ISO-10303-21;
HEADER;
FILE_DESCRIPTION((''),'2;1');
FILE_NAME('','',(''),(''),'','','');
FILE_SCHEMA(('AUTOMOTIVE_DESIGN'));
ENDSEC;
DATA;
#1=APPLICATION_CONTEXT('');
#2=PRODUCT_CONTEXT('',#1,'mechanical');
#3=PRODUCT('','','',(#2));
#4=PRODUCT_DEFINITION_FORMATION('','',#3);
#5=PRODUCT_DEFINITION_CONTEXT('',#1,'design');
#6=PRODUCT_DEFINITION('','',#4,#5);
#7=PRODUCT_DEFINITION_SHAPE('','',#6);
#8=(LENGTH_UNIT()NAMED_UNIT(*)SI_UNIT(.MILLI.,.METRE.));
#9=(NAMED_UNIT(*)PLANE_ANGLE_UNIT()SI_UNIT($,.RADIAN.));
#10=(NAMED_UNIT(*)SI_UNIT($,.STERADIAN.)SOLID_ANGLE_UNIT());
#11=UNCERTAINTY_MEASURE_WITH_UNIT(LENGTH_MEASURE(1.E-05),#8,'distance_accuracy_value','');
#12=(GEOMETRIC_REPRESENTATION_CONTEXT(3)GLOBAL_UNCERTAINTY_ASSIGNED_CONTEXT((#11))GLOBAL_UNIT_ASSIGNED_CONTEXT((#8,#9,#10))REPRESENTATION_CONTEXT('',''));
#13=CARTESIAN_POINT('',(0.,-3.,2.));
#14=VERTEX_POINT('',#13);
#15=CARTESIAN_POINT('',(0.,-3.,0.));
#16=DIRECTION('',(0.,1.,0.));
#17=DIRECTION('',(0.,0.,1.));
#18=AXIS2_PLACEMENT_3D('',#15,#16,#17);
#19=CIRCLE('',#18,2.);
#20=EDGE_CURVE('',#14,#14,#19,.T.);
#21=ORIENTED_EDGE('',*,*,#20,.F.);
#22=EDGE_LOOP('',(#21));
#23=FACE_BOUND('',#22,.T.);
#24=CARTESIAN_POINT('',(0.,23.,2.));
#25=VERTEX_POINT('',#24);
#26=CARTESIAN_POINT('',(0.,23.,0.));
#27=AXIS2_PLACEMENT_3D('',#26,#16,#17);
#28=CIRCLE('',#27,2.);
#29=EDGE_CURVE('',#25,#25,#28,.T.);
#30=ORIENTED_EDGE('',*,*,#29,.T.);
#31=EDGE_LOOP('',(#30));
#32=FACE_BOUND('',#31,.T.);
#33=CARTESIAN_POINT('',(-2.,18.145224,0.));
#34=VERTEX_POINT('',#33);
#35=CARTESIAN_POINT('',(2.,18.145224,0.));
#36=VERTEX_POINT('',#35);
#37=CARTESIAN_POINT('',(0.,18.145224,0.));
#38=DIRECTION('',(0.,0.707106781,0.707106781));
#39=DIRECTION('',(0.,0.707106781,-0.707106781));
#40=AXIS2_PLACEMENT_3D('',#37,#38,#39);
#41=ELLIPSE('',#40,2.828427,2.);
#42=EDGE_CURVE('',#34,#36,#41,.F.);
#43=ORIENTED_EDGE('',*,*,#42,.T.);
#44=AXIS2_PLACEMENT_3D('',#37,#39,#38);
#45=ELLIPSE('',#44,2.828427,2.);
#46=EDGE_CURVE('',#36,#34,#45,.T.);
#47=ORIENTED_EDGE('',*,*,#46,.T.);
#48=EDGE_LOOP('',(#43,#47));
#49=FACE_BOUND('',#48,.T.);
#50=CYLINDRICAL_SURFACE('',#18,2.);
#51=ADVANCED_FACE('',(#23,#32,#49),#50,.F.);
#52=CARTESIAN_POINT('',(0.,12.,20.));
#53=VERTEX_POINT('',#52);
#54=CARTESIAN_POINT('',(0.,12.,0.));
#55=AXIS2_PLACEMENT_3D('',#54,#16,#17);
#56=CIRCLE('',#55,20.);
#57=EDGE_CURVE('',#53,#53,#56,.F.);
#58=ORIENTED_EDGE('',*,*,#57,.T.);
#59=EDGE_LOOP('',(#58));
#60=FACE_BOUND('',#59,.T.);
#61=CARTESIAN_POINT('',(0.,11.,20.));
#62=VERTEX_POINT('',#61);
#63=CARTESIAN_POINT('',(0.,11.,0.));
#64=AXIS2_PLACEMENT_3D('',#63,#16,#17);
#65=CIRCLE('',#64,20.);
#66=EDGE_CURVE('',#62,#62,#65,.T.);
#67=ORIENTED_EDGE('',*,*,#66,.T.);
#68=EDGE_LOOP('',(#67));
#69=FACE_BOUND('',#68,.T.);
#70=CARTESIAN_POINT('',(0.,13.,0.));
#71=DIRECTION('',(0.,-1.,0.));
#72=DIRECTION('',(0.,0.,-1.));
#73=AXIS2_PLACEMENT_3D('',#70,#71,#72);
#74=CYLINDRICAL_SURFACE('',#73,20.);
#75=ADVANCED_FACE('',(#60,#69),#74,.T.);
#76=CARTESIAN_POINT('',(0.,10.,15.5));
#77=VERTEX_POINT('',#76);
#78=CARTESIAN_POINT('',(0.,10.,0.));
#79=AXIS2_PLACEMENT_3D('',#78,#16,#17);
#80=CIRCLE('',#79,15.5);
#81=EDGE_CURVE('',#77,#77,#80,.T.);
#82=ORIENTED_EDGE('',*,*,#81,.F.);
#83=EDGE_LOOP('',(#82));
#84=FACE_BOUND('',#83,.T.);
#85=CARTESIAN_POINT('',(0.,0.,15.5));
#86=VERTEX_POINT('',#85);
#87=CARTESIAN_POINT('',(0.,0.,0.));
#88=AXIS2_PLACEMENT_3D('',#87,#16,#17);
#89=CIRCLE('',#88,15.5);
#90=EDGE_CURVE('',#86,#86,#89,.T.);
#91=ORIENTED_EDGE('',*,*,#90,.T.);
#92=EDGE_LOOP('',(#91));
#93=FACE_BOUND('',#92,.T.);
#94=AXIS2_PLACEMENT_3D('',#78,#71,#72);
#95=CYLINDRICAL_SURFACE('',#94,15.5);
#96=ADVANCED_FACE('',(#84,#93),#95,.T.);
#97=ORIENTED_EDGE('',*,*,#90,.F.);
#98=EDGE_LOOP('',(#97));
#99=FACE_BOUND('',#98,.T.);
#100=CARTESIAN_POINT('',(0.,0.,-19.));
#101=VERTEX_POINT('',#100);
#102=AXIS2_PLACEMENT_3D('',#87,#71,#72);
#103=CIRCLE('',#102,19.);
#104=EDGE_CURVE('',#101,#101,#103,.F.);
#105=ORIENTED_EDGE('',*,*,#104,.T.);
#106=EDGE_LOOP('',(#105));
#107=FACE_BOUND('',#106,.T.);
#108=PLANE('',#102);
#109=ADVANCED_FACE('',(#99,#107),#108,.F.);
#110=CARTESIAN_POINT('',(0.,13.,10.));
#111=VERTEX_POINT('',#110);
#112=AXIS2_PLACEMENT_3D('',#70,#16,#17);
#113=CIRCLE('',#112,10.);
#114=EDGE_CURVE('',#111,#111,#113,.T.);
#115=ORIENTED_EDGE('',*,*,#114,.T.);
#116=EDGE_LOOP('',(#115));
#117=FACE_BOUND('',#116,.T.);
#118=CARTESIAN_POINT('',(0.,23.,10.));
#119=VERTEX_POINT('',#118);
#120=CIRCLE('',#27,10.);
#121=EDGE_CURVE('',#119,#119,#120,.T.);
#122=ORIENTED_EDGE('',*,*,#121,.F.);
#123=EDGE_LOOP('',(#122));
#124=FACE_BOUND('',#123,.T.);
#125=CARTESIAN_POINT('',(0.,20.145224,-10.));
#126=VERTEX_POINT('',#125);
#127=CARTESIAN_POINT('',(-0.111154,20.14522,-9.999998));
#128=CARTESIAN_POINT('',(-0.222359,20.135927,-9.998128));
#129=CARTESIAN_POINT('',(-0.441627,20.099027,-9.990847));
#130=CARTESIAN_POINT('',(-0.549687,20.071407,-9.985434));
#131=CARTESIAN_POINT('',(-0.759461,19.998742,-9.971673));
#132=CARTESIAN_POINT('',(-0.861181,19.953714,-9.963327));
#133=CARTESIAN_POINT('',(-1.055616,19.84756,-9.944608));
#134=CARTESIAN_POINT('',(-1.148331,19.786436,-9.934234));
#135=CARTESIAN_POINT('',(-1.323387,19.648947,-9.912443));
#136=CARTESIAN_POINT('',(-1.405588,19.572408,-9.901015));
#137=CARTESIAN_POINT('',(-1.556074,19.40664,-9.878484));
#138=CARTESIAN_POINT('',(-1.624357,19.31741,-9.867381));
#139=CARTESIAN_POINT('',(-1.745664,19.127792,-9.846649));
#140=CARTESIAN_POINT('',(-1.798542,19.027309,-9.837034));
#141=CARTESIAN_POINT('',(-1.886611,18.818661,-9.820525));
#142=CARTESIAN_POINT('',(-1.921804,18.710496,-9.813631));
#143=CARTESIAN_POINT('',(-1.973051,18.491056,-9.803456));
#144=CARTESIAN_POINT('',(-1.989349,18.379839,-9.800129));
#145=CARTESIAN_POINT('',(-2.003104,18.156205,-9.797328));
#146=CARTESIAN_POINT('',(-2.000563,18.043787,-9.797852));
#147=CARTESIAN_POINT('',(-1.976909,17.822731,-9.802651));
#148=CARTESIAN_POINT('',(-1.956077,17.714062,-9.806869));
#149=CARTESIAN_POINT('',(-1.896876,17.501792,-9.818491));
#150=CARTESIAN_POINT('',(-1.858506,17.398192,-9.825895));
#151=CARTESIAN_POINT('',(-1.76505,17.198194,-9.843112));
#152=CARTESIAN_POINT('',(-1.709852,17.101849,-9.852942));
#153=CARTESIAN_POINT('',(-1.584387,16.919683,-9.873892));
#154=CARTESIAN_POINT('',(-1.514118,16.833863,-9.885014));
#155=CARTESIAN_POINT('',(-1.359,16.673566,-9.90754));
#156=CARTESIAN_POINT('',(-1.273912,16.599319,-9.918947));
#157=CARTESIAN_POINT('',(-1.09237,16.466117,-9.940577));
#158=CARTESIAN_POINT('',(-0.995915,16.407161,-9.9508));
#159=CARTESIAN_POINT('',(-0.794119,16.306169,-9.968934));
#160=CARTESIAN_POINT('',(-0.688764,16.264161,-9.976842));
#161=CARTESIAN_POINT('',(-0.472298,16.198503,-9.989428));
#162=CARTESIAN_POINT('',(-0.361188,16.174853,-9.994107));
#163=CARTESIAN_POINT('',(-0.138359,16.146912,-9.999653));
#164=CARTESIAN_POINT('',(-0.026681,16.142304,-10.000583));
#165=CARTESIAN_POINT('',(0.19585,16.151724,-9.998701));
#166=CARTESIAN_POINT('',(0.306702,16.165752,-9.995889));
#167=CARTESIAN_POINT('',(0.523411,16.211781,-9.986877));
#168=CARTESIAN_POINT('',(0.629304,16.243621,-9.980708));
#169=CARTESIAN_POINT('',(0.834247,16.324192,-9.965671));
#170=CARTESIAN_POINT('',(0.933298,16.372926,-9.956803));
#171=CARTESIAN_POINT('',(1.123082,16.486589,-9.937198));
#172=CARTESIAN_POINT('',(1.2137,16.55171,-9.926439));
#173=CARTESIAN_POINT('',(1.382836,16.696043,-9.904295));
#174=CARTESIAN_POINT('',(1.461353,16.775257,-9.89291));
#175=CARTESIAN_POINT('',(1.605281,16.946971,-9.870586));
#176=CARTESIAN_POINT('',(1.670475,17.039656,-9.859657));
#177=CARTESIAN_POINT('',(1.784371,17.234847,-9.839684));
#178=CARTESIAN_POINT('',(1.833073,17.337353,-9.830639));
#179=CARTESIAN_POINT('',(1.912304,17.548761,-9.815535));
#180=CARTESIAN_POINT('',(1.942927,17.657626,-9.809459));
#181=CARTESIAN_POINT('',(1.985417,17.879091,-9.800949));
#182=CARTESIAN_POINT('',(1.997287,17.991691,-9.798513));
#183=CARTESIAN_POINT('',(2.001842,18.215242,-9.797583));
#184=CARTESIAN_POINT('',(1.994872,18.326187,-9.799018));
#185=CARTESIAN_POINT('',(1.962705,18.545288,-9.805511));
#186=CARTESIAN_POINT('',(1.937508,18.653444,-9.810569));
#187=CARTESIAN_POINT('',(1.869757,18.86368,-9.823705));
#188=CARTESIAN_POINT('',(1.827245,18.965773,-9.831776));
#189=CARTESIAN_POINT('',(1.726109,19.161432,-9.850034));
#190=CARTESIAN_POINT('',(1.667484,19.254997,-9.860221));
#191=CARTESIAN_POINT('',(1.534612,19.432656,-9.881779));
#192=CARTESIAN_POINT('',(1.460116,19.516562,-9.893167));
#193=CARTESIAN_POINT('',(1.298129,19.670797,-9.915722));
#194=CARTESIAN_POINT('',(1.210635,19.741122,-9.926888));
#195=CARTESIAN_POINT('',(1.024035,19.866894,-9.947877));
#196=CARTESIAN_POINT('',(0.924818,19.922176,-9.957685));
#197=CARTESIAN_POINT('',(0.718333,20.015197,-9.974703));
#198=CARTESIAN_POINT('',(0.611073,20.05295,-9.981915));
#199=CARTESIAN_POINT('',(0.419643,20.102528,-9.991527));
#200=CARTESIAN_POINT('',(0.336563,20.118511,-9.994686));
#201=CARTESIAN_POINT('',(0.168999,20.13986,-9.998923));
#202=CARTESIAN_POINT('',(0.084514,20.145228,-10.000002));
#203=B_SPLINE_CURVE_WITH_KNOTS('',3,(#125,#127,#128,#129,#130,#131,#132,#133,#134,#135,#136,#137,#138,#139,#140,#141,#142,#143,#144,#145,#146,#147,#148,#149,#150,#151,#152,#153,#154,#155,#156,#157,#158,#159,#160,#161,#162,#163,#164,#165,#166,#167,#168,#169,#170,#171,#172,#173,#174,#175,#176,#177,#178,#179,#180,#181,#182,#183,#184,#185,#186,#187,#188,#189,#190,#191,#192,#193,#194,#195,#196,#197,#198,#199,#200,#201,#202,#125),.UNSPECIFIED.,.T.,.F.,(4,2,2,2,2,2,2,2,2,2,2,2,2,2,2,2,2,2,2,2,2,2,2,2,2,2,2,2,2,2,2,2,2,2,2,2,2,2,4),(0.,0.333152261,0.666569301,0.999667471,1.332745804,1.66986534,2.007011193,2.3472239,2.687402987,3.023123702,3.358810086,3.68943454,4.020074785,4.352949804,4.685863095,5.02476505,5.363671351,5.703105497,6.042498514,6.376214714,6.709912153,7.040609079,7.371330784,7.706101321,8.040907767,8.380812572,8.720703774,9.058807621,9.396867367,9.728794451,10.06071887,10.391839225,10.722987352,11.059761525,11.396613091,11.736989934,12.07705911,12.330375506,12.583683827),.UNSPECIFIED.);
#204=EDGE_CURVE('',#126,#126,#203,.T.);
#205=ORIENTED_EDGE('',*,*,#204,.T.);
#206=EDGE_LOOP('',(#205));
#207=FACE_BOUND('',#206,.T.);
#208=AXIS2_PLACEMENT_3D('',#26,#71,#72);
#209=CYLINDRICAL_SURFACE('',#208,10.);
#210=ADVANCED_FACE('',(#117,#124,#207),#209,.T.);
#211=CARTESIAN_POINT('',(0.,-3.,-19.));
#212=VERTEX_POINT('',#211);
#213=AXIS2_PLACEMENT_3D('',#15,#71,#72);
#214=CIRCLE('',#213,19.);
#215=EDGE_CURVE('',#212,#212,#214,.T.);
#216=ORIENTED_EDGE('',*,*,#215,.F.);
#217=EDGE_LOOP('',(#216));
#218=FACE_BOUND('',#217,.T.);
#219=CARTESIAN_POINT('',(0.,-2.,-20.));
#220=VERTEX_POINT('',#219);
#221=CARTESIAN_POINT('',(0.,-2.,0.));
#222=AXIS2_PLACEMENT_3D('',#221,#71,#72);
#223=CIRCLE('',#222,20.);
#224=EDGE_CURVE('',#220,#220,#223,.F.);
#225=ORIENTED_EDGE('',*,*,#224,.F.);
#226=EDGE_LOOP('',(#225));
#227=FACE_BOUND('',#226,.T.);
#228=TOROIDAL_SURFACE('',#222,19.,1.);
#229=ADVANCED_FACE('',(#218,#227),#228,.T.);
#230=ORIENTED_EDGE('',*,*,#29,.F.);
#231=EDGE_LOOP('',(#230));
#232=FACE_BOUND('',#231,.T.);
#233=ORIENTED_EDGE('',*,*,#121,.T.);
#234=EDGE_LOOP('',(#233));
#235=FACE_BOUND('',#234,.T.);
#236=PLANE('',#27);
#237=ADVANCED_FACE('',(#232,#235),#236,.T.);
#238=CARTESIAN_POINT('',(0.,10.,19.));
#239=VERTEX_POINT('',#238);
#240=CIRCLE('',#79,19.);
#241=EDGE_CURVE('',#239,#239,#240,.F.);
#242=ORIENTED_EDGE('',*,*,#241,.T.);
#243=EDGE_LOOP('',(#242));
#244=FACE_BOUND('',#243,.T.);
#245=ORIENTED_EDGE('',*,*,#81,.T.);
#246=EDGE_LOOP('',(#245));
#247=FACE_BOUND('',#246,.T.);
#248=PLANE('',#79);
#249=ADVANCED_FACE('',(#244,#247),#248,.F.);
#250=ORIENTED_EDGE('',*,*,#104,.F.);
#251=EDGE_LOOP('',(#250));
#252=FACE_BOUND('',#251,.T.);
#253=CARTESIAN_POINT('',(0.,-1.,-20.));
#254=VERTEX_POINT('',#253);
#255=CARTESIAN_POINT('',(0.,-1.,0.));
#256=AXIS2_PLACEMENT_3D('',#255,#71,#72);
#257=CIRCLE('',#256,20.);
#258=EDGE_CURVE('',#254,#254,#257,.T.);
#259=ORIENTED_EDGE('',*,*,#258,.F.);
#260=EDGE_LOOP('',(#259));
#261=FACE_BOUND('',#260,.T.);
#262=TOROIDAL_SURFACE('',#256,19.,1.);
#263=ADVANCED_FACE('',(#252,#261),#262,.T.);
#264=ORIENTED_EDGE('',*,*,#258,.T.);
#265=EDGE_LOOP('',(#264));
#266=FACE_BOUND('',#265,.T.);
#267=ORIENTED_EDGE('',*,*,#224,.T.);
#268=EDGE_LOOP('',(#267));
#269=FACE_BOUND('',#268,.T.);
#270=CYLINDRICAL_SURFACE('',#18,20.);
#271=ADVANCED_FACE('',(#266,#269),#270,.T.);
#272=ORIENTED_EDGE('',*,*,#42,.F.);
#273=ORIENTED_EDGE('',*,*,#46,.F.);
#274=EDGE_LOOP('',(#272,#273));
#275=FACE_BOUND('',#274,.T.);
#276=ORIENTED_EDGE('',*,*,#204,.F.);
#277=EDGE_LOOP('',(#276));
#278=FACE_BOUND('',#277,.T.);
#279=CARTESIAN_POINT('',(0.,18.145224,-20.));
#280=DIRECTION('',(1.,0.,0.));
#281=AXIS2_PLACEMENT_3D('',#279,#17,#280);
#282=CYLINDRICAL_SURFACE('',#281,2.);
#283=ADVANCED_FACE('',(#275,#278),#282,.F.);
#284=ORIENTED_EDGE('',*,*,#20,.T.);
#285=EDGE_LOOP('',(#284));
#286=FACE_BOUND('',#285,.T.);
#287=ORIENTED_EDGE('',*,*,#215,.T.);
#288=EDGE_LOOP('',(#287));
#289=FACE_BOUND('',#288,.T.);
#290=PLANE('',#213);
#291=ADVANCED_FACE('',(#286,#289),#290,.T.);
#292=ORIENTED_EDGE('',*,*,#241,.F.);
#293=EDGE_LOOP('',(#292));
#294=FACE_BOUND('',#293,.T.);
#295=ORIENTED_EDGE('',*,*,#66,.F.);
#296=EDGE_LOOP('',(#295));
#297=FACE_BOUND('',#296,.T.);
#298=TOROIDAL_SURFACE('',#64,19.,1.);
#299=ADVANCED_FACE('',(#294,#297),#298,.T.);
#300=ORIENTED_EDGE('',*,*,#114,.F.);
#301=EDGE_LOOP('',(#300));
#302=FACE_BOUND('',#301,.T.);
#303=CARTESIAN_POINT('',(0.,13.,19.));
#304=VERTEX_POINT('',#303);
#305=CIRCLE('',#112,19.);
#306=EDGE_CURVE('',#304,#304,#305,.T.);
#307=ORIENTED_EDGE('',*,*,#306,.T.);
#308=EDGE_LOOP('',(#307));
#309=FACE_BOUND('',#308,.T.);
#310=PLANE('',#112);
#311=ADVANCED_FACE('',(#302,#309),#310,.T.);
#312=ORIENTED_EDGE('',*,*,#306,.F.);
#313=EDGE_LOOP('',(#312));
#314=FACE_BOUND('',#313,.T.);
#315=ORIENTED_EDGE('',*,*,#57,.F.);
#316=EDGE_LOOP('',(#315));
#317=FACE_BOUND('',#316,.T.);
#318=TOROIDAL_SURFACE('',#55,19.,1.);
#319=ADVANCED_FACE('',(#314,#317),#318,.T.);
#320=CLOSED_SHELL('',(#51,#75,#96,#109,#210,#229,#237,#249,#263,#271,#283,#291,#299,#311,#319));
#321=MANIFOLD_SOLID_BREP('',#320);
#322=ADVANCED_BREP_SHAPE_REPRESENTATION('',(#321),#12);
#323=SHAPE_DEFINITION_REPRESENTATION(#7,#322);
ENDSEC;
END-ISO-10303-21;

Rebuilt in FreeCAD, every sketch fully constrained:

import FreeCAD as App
import Part
import Sketcher

V = App.Vector


def edges_at(feature, points):
    """Names of the edges that pass closest to the given points."""
    edges = feature.Shape.Edges
    near = lambda p: min(range(len(edges)), key=lambda i: edges[i].distToShape(Part.Vertex(*p))[0])
    return sorted({f"Edge{near(p) + 1}" for p in points})

doc = App.newDocument("Part")
body = doc.addObject("PartDesign::Body", "Body")

sketch1 = body.newObject("Sketcher::SketchObject", "Sketch")
sketch1.AttachmentSupport = (doc.getObject("XZ_Plane"), [""])
sketch1.MapMode = "FlatFace"
sketch1.addGeometry(Part.Circle(V(0, 0, 0), V(0, 0, 1), 15.5), False)
sketch1.addConstraint(Sketcher.Constraint("Coincident", 0, 3, -1, 1))
sketch1.addConstraint(Sketcher.Constraint("Diameter", 0, 31.0))
pad1 = body.newObject("PartDesign::Pad", "Pad")
pad1.Profile = sketch1
pad1.Length = 10
pad1.Reversed = True

sketch2 = body.newObject("Sketcher::SketchObject", "Sketch001")
sketch2.AttachmentSupport = (doc.getObject("XZ_Plane"), [""])
sketch2.MapMode = "FlatFace"
sketch2.AttachmentOffset = App.Placement(V(0, 0, -10), App.Rotation())
sketch2.addGeometry(Part.Circle(V(0, 0, 0), V(0, 0, 1), 20), False)
sketch2.addConstraint(Sketcher.Constraint("Coincident", 0, 3, -1, 1))
sketch2.addConstraint(Sketcher.Constraint("Diameter", 0, 40.0))
pad2 = body.newObject("PartDesign::Pad", "Pad001")
pad2.Profile = sketch2
pad2.Length = 3
pad2.Reversed = True

sketch3 = body.newObject("Sketcher::SketchObject", "Sketch002")
sketch3.AttachmentSupport = (doc.getObject("XZ_Plane"), [""])
sketch3.MapMode = "FlatFace"
sketch3.AttachmentOffset = App.Placement(V(0, 0, 3), App.Rotation())
sketch3.addGeometry(Part.Circle(V(0, 0, 0), V(0, 0, 1), 20), False)
sketch3.addConstraint(Sketcher.Constraint("Coincident", 0, 3, -1, 1))
sketch3.addConstraint(Sketcher.Constraint("Diameter", 0, 40.0))
pad3 = body.newObject("PartDesign::Pad", "Pad002")
pad3.Profile = sketch3
pad3.Length = 3
pad3.Reversed = True
doc.recompute()

fillet = body.newObject("PartDesign::Fillet", "Fillet")
fillet.Base = (pad3, edges_at(pad3, [
    (0, -3, -20),
    (0, 10, -20),
    (0, 13, -20),
    (0, 0, -20),
]))
fillet.Radius = 1

sketch4 = body.newObject("Sketcher::SketchObject", "Sketch003")
sketch4.AttachmentSupport = (doc.getObject("XZ_Plane"), [""])
sketch4.MapMode = "FlatFace"
sketch4.AttachmentOffset = App.Placement(V(0, 0, -13), App.Rotation())
sketch4.addGeometry(Part.Circle(V(0, 0, 0), V(0, 0, 1), 2), False)
sketch4.addConstraint(Sketcher.Constraint("Coincident", 0, 3, -1, 1))
sketch4.addConstraint(Sketcher.Constraint("Diameter", 0, 4.0))
pocket1 = body.newObject("PartDesign::Pocket", "Pocket")
pocket1.Profile = sketch4
pocket1.Type = "ThroughAll"
pocket1.Reversed = True

sketch5 = body.newObject("Sketcher::SketchObject", "Sketch004")
sketch5.AttachmentSupport = (doc.getObject("XZ_Plane"), [""])
sketch5.MapMode = "FlatFace"
sketch5.AttachmentOffset = App.Placement(V(0, 0, -23), App.Rotation())
sketch5.addGeometry(Part.Circle(V(0, 0, 0), V(0, 0, 1), 10), False)
sketch5.addGeometry(Part.Circle(V(0, 0, 0), V(0, 0, 1), 2), False)
sketch5.addConstraint(Sketcher.Constraint("Coincident", 0, 3, -1, 1))
sketch5.addConstraint(Sketcher.Constraint("Coincident", 1, 3, -1, 1))
sketch5.addConstraint(Sketcher.Constraint("Diameter", 0, 20.0))
sketch5.addConstraint(Sketcher.Constraint("Diameter", 1, 4.0))
pad4 = body.newObject("PartDesign::Pad", "Pad003")
pad4.Profile = sketch5
pad4.Length = 10

sketch6 = body.newObject("Sketcher::SketchObject", "Sketch005")
sketch6.AttachmentSupport = (doc.getObject("XY_Plane"), [""])
sketch6.MapMode = "FlatFace"
sketch6.addGeometry(Part.Circle(V(0, 18.145224, 0), V(0, 0, 1), 2), False)
sketch6.addConstraint(Sketcher.Constraint("PointOnObject", 0, 3, -2))
sketch6.addConstraint(Sketcher.Constraint("Diameter", 0, 4.0))
sketch6.addConstraint(Sketcher.Constraint("DistanceY", -1, 1, 0, 3, 18.145224))
pocket2 = body.newObject("PartDesign::Pocket", "Pocket001")
pocket2.Profile = sketch6
pocket2.Type = "ThroughAll"

doc.recompute()
